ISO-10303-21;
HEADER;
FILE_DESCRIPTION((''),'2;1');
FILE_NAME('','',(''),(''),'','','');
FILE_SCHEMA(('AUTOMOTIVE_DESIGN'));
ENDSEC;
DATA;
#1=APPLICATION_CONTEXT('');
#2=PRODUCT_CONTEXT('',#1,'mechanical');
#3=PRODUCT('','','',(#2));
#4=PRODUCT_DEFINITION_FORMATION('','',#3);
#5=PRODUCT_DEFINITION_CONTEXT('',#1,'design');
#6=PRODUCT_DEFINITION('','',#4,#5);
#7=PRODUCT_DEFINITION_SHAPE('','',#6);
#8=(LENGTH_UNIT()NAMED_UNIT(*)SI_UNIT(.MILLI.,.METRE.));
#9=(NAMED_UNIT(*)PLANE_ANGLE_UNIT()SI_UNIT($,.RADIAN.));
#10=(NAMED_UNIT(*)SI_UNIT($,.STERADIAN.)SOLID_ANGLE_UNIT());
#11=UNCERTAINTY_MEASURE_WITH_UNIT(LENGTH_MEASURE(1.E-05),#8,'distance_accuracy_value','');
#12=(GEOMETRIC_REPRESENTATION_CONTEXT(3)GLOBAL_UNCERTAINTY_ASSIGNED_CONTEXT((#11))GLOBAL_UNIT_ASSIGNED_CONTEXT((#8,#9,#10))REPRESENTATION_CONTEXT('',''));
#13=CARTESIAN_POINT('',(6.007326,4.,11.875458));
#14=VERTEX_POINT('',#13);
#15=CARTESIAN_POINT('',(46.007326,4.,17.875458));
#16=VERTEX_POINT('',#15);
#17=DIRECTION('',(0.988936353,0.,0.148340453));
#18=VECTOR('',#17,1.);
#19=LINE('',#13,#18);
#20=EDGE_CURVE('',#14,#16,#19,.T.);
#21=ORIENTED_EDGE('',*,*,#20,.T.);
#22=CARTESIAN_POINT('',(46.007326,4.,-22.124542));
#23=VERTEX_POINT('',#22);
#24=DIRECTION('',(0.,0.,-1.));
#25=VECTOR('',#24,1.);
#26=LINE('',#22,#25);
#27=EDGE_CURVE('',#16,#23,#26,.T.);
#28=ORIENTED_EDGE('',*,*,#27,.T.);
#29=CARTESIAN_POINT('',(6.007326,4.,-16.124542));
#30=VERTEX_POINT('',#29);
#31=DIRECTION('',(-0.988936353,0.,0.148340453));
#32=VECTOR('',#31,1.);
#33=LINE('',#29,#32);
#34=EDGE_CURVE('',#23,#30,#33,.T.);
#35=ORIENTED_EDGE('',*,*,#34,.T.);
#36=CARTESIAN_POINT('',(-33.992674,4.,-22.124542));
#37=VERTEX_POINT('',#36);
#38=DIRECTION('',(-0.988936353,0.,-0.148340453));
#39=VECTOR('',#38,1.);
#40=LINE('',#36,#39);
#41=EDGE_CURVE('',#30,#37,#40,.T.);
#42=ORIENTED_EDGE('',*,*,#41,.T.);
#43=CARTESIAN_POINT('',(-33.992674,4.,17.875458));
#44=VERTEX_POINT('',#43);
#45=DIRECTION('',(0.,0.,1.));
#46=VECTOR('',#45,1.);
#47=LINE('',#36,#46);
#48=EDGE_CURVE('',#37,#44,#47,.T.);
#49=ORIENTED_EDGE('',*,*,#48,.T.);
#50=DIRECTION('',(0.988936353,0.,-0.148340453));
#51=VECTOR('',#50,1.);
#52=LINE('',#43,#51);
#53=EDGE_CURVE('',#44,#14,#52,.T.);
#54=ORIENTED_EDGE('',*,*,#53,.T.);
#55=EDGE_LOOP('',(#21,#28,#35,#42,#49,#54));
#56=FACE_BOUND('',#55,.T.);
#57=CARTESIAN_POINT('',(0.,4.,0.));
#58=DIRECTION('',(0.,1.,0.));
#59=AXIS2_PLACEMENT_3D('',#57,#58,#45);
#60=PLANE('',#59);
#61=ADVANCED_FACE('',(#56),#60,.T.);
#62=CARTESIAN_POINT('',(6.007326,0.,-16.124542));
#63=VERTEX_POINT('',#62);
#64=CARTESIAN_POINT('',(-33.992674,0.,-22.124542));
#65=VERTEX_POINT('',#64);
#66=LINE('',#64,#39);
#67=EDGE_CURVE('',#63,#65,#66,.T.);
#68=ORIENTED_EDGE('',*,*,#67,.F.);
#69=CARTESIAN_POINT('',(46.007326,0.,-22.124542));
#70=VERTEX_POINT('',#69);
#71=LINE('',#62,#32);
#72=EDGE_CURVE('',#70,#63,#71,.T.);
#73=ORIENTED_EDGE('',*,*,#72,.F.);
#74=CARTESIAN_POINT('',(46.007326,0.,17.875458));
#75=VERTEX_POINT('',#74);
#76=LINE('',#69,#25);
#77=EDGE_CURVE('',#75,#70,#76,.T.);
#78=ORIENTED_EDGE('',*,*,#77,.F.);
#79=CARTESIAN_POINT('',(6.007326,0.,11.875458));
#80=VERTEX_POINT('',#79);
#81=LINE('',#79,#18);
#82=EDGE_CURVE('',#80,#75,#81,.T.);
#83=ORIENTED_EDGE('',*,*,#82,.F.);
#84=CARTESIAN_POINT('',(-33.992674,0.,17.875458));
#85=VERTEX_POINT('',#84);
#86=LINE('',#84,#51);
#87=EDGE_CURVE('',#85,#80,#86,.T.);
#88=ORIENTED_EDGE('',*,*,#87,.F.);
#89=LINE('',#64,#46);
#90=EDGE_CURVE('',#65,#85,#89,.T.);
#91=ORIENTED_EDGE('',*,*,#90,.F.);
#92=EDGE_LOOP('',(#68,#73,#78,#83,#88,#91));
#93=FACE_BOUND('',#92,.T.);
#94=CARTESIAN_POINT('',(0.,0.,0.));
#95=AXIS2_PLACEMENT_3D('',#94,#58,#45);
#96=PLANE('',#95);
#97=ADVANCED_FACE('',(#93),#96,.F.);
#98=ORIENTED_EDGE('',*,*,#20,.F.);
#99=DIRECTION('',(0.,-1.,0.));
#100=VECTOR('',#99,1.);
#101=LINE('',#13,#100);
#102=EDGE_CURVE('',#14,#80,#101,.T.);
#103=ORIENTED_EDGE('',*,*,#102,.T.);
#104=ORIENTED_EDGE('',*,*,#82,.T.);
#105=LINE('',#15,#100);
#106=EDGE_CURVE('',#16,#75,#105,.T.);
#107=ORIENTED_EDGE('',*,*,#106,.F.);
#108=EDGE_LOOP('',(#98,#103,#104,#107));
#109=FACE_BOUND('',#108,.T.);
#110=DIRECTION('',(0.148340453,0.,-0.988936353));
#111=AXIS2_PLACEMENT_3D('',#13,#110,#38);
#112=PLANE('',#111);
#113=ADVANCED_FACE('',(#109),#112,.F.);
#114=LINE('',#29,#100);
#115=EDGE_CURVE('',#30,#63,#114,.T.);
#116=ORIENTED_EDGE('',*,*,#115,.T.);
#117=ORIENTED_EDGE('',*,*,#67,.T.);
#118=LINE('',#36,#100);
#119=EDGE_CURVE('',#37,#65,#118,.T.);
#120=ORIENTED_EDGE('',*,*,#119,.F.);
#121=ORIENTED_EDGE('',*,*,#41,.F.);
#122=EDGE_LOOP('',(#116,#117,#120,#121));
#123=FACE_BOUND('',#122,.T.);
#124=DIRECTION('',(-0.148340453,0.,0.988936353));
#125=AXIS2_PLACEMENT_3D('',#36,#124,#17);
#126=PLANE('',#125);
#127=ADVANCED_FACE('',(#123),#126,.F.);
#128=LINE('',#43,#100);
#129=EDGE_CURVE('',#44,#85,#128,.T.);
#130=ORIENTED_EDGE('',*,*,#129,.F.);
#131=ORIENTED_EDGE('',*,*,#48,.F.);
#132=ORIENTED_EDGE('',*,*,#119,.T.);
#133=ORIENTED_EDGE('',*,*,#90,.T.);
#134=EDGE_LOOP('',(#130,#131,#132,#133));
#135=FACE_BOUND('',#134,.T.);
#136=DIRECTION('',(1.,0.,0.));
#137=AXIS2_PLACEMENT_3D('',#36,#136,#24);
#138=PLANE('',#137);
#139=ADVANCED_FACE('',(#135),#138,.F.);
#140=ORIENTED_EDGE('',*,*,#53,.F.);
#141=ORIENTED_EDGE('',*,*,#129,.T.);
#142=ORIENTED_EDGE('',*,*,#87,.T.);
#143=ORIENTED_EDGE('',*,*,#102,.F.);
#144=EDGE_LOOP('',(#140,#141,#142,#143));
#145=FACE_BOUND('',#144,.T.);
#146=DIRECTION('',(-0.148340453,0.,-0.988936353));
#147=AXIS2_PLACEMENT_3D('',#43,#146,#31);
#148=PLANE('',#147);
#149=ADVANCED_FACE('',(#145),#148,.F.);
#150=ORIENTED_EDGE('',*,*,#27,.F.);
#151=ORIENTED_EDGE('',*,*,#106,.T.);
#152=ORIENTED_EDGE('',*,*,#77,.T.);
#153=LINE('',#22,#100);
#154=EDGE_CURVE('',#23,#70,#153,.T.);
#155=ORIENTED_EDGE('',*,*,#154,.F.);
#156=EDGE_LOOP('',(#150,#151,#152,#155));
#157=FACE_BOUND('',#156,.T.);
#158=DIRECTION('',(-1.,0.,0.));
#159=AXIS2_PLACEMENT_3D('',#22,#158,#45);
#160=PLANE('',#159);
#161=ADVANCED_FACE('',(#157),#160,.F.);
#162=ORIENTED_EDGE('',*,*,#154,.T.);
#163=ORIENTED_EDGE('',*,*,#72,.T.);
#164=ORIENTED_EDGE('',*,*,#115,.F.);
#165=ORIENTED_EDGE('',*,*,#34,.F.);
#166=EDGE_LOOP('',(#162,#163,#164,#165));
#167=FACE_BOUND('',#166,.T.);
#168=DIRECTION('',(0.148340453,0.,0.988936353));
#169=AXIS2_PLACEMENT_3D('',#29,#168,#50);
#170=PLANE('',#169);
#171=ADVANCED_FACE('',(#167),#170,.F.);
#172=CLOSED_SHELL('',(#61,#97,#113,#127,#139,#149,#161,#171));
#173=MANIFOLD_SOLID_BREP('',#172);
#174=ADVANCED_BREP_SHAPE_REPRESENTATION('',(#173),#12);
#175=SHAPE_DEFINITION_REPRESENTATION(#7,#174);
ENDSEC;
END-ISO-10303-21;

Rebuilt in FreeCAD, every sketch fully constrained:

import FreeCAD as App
import Part
import Sketcher


def add_polygon(sketch, points):
    """Adds a closed chain of lines whose ends are joined by coincident constraints."""
    first, n = sketch.GeometryCount, len(points)
    for a, b in zip(points, points[1:] + points[:1]):
        sketch.addGeometry(Part.LineSegment(App.Vector(*a, 0), App.Vector(*b, 0)), False)
    for i in range(n):
        sketch.addConstraint(Sketcher.Constraint("Coincident", first + i, 2, first + (i + 1) % n, 1))

doc = App.newDocument("Part")
body = doc.addObject("PartDesign::Body", "Body")

sketch1 = body.newObject("Sketcher::SketchObject", "Sketch")
sketch1.AttachmentSupport = (doc.getObject("XZ_Plane"), [""])
sketch1.MapMode = "FlatFace"
add_polygon(sketch1, [(6, -16), (-34, -22), (-34, 18), (6, 12), (46, 18), (46, -22)])
sketch1.addConstraint(Sketcher.Constraint("Vertical", 1))
sketch1.addConstraint(Sketcher.Constraint("Vertical", 4))
sketch1.addConstraint(Sketcher.Constraint("Parallel", 0, 3))
sketch1.addConstraint(Sketcher.Constraint("Parallel", 2, 5))
sketch1.addConstraint(Sketcher.Constraint("Horizontal", 1, 2, 3, 2))
sketch1.addConstraint(Sketcher.Constraint("Horizontal", 0, 2, 4, 2))
sketch1.addConstraint(Sketcher.Constraint("Vertical", 2, 2, 5, 2))
sketch1.addConstraint(Sketcher.Constraint("DistanceY", 1, 1, 1, 2, 40.0))
sketch1.addConstraint(Sketcher.Constraint("DistanceX", 1, 2, 2, 2, 40.0))
sketch1.addConstraint(Sketcher.Constraint("DistanceY", 2, 2, 1, 2, 6.0))
sketch1.addConstraint(Sketcher.Constraint("DistanceX", 0, 2, -1, 1, 33.992674))
sketch1.addConstraint(Sketcher.Constraint("DistanceY", 0, 2, -1, 1, 22.124542))
pad1 = body.newObject("PartDesign::Pad", "Pad")
pad1.Profile = sketch1
pad1.Length = 4
pad1.Reversed = True

doc.recompute()
